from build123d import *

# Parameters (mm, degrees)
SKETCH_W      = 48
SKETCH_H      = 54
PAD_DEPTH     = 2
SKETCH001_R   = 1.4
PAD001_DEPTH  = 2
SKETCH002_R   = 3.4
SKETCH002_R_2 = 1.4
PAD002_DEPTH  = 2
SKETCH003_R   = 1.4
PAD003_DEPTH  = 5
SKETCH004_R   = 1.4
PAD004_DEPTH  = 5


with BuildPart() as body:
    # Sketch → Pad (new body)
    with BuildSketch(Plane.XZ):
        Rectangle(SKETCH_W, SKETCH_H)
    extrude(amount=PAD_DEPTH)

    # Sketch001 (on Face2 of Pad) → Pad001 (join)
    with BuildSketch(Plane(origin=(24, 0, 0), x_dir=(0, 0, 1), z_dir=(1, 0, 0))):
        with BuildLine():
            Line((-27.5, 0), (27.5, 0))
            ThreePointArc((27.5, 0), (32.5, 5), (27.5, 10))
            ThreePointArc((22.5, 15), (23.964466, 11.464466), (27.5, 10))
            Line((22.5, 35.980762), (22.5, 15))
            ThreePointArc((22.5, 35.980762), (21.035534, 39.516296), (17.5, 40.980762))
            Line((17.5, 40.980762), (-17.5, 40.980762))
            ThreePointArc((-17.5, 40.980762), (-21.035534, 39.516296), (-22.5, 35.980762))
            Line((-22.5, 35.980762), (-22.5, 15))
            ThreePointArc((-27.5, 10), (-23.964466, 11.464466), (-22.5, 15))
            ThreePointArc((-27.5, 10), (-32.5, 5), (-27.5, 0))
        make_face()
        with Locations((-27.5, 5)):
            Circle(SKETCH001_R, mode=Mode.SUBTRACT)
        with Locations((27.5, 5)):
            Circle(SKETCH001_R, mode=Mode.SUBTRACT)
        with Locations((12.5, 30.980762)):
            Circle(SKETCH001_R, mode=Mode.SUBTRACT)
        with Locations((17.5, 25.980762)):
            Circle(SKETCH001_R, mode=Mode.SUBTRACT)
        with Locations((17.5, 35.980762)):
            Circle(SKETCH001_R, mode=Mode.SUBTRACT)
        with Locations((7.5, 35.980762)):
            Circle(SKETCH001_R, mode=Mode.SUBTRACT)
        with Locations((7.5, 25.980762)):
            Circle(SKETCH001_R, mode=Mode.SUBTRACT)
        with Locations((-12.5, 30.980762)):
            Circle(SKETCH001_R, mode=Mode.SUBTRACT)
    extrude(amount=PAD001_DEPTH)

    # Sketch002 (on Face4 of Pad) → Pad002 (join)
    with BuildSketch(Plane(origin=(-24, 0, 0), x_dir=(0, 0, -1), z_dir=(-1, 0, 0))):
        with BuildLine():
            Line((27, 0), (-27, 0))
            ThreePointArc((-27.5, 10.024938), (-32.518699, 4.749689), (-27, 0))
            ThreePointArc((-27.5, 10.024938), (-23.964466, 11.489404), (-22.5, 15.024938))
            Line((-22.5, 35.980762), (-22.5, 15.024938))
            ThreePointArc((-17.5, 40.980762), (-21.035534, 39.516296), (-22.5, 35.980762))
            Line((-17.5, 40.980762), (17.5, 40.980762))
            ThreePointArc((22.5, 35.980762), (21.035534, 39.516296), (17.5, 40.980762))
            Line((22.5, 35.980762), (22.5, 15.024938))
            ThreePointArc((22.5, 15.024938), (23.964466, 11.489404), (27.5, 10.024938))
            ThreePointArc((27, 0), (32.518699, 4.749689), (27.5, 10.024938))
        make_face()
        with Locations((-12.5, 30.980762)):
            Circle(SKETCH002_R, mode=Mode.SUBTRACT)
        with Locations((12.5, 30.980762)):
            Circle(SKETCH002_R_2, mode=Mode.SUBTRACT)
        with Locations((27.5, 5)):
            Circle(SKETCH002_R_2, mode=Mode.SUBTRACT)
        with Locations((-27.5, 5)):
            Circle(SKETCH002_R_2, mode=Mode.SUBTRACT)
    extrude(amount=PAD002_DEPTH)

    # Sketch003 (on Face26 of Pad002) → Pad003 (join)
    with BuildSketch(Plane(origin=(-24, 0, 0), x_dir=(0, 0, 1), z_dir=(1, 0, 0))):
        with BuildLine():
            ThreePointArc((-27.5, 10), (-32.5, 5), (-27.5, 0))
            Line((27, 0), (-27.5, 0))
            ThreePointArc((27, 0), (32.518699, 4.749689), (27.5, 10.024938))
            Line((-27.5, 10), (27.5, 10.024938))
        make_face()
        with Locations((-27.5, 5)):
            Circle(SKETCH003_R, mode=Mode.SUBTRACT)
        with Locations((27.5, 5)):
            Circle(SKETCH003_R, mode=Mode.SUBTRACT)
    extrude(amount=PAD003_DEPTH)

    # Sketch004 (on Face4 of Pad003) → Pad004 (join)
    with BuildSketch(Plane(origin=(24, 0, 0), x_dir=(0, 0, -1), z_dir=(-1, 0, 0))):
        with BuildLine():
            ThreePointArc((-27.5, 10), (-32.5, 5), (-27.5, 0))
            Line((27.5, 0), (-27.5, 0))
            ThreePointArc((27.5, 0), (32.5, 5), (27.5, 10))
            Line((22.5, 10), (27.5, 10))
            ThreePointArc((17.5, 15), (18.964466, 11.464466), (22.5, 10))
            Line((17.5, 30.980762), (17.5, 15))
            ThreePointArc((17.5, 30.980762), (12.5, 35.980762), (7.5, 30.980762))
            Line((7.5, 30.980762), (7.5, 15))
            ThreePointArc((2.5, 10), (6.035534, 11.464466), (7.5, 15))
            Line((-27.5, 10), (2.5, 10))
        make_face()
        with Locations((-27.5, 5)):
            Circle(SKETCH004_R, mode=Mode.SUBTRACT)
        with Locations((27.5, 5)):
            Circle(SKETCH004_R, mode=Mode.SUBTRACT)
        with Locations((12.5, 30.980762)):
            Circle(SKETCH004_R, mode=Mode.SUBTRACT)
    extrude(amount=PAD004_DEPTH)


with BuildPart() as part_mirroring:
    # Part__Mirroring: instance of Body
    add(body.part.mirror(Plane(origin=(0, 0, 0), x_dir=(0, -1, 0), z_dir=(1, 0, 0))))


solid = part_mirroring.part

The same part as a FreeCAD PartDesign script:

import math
import FreeCAD as App
import Part
import Sketcher

V = App.Vector


def add_polygon(sketch, points):
    """Adds a closed chain of lines whose ends are joined by coincident constraints."""
    first, n = sketch.GeometryCount, len(points)
    for a, b in zip(points, points[1:] + points[:1]):
        sketch.addGeometry(Part.LineSegment(App.Vector(*a, 0), App.Vector(*b, 0)), False)
    for i in range(n):
        sketch.addConstraint(Sketcher.Constraint("Coincident", first + i, 2, first + (i + 1) % n, 1))

doc = App.newDocument("Part")
body = doc.addObject("PartDesign::Body", "Body")

# Sketch on XZ plane
sketch1 = body.newObject("Sketcher::SketchObject", "Sketch")
sketch1.AttachmentSupport = (doc.getObject("XZ_Plane"), [""])
sketch1.MapMode = "FlatFace"
add_polygon(sketch1, [(-24, 27), (-24, -27), (24, -27), (24, 27)])  # lines 0-3
sketch1.addConstraint([
    Sketcher.Constraint("Vertical", 0),
    Sketcher.Constraint("Horizontal", 1),
    Sketcher.Constraint("Vertical", 2),
    Sketcher.Constraint("Horizontal", 3),
    Sketcher.Constraint("Symmetric", 0, 2, 2, 2, -1, 1),
    Sketcher.Constraint("DistanceX", 1, 1, 1, 2, 48.0),
    Sketcher.Constraint("DistanceY", 0, 2, 0, 1, 54.0),
])
pad1 = body.newObject("PartDesign::Pad", "Pad")
pad1.Profile = sketch1
pad1.Length = 2

# Sketch on YZ plane
sketch2 = body.newObject("Sketcher::SketchObject", "Sketch001")
sketch2.AttachmentSupport = (doc.getObject("YZ_Plane"), [""])
sketch2.MapMode = "FlatFace"
sketch2.AttachmentOffset = App.Placement(V(0, 0, 24), App.Rotation())
sketch2.addGeometry([
    Part.LineSegment(V(0, -27.5, 0), V(0, 27.5, 0)),  # 0
    Part.ArcOfCircle(Part.Circle(V(-5, 27.5, 0), V(0, 0, 1), 5), math.radians(0), math.radians(180)),  # 1
    Part.ArcOfCircle(Part.Circle(V(-15, 27.5, 0), V(0, 0, 1), 5), math.radians(-90), math.radians(0)),  # 2
    Part.LineSegment(V(-15, 22.5, 0), V(-36, 22.5, 0)),  # 3
    Part.ArcOfCircle(Part.Circle(V(-36, 17.5, 0), V(0, 0, 1), 5), math.radians(90), math.radians(180)),  # 4
    Part.LineSegment(V(-41, 17.5, 0), V(-41, -17.5, 0)),  # 5
    Part.ArcOfCircle(Part.Circle(V(-36, -17.5, 0), V(0, 0, 1), 5), math.radians(180), math.radians(270)),  # 6
    Part.LineSegment(V(-36, -22.5, 0), V(-15, -22.5, 0)),  # 7
    Part.ArcOfCircle(Part.Circle(V(-15, -27.5, 0), V(0, 0, 1), 5), math.radians(0), math.radians(90)),  # 8
    Part.ArcOfCircle(Part.Circle(V(-5, -27.5, 0), V(0, 0, 1), 5), math.radians(180), math.radians(360)),  # 9
    Part.Circle(V(-5, -27.5, 0), V(0, 0, 1), 1.4),  # 10
    Part.Circle(V(-5, 27.5, 0), V(0, 0, 1), 1.4),  # 11
    Part.Circle(V(-31, -12.5, 0), V(0, 0, 1), 1.4),  # 12
    Part.Circle(V(-26, 7.5, 0), V(0, 0, 1), 1.4),  # 13
    Part.Circle(V(-26, 17.5, 0), V(0, 0, 1), 1.4),  # 14
    Part.Circle(V(-31, 12.5, 0), V(0, 0, 1), 1.4),  # 15
    Part.Circle(V(-36, 7.5, 0), V(0, 0, 1), 1.4),  # 16
    Part.Circle(V(-36, 17.5, 0), V(0, 0, 1), 1.4),  # 17
], False)
sketch2.addConstraint([
    Sketcher.Constraint("Tangent", 0, 2, 1, 1),
    Sketcher.Constraint("Tangent", 1, 2, 2, 2),
    Sketcher.Constraint("Tangent", 2, 1, 3, 1),
    Sketcher.Constraint("Tangent", 3, 2, 4, 1),
    Sketcher.Constraint("Tangent", 4, 2, 5, 1),
    Sketcher.Constraint("Tangent", 5, 2, 6, 1),
    Sketcher.Constraint("Tangent", 6, 2, 7, 1),
    Sketcher.Constraint("Tangent", 7, 2, 8, 2),
    Sketcher.Constraint("Tangent", 8, 1, 9, 1),
    Sketcher.Constraint("Tangent", 9, 2, 0, 1),
    Sketcher.Constraint("Vertical", 0),
    Sketcher.Constraint("Horizontal", 3),
    Sketcher.Constraint("Vertical", 5),
    Sketcher.Constraint("Horizontal", 7),
    Sketcher.Constraint("Coincident", 10, 3, 9, 3),
    Sketcher.Constraint("Coincident", 11, 3, 1, 3),
    Sketcher.Constraint("Coincident", 17, 3, 4, 3),
    Sketcher.Constraint("Equal", 1, 2),
    Sketcher.Constraint("Equal", 2, 4),
    Sketcher.Constraint("Equal", 4, 6),
    Sketcher.Constraint("Equal", 6, 8),
    Sketcher.Constraint("Equal", 8, 9),
    Sketcher.Constraint("Equal", 10, 11),
    Sketcher.Constraint("Equal", 11, 12),
    Sketcher.Constraint("Equal", 12, 13),
    Sketcher.Constraint("Equal", 13, 14),
    Sketcher.Constraint("Equal", 14, 15),
    Sketcher.Constraint("Equal", 15, 16),
    Sketcher.Constraint("Equal", 16, 17),
    Sketcher.Constraint("Symmetric", 0, 2, 9, 2, -1, 1),
    Sketcher.Constraint("Symmetric", 12, 3, 15, 3, -1),
    Sketcher.Constraint("Horizontal", 1, 3, 2, 3),
    Sketcher.Constraint("Horizontal", 8, 3, 9, 3),
    Sketcher.Constraint("Horizontal", 4, 3, 14, 3),
    Sketcher.Constraint("Horizontal", 13, 3, 16, 3),
    Sketcher.Constraint("Vertical", 13, 3, 14, 3),
    Sketcher.Constraint("Vertical", 6, 3, 16, 3),
    Sketcher.Constraint("Radius", 1, 5.0),
    Sketcher.Constraint("Diameter", 10, 2.8),
    Sketcher.Constraint("DistanceY", 0, 1, 0, 2, 55.0),
    Sketcher.Constraint("DistanceX", 6, 3, 12, 3, 5.0),
    Sketcher.Constraint("DistanceY", 6, 3, 12, 3, 5.0),
    Sketcher.Constraint("DistanceX", 4, 3, 13, 3, 10.0),
    Sketcher.Constraint("DistanceY", 13, 3, 4, 3, 10.0),
    Sketcher.Constraint("DistanceX", 3, 2, 3, 1, 20.980762),
])
pad2 = body.newObject("PartDesign::Pad", "Pad001")
pad2.Profile = sketch2
pad2.Length = 2

# Sketch on YZ plane
sketch3 = body.newObject("Sketcher::SketchObject", "Sketch002")
sketch3.AttachmentSupport = (doc.getObject("YZ_Plane"), [""])
sketch3.MapMode = "FlatFace"
sketch3.AttachmentOffset = App.Placement(V(0, 0, -24), App.Rotation())
sketch3.addGeometry([
    Part.LineSegment(V(0, 27, 0), V(0, -27, 0)),  # 0
    Part.ArcOfCircle(Part.Circle(V(-5, -27.5, 0), V(0, 0, 1), 5), math.radians(-180), math.radians(6)),  # 1
    Part.ArcOfCircle(Part.Circle(V(-15, -27.5, 0), V(0, 0, 1), 5), math.radians(0), math.radians(90)),  # 2
    Part.LineSegment(V(-15, -22.5, 0), V(-36, -22.5, 0)),  # 3
    Part.ArcOfCircle(Part.Circle(V(-36, -17.5, 0), V(0, 0, 1), 5), math.radians(180), math.radians(270)),  # 4
    Part.LineSegment(V(-41, -17.5, 0), V(-41, 17.5, 0)),  # 5
    Part.ArcOfCircle(Part.Circle(V(-36, 17.5, 0), V(0, 0, 1), 5), math.radians(90), math.radians(180)),  # 6
    Part.LineSegment(V(-36, 22.5, 0), V(-15, 22.5, 0)),  # 7
    Part.ArcOfCircle(Part.Circle(V(-15, 27.5, 0), V(0, 0, 1), 5), math.radians(-90), math.radians(0)),  # 8
    Part.ArcOfCircle(Part.Circle(V(-5, 27.5, 0), V(0, 0, 1), 5), math.radians(-6), math.radians(180)),  # 9
    Part.Circle(V(-5, -27.5, 0), V(0, 0, 1), 1.4),  # 10
    Part.Circle(V(-5, 27.5, 0), V(0, 0, 1), 1.4),  # 11
    Part.Circle(V(-31, -12.5, 0), V(0, 0, 1), 1.4),  # 12
    Part.Circle(V(-31, 12.5, 0), V(0, 0, 1), 3.4),  # 13
], False)
sketch3.addConstraint([
    Sketcher.Constraint("Coincident", 0, 2, 1, 2),
    Sketcher.Constraint("Tangent", 1, 1, 2, 1),
    Sketcher.Constraint("Tangent", 2, 2, 3, 1),
    Sketcher.Constraint("Tangent", 3, 2, 4, 2),
    Sketcher.Constraint("Tangent", 4, 1, 5, 1),
    Sketcher.Constraint("Tangent", 5, 2, 6, 2),
    Sketcher.Constraint("Tangent", 6, 1, 7, 1),
    Sketcher.Constraint("Tangent", 7, 2, 8, 1),
    Sketcher.Constraint("Tangent", 8, 2, 9, 2),
    Sketcher.Constraint("Coincident", 9, 1, 0, 1),
    Sketcher.Constraint("Vertical", 0),
    Sketcher.Constraint("Horizontal", 3),
    Sketcher.Constraint("Vertical", 5),
    Sketcher.Constraint("Horizontal", 7),
    Sketcher.Constraint("Coincident", 10, 3, 1, 3),
    Sketcher.Constraint("Coincident", 11, 3, 9, 3),
    Sketcher.Constraint("Equal", 2, 4),
    Sketcher.Constraint("Equal", 4, 6),
    Sketcher.Constraint("Equal", 6, 8),
    Sketcher.Constraint("Equal", 1, 9),
    Sketcher.Constraint("Equal", 10, 11),
    Sketcher.Constraint("Equal", 11, 12),
    Sketcher.Constraint("Symmetric", 0, 2, 9, 1, -1, 1),
    Sketcher.Constraint("Symmetric", 2, 3, 8, 3, -1),
    Sketcher.Constraint("Symmetric", 12, 3, 13, 3, -1),
    Sketcher.Constraint("Horizontal", 1, 3, 2, 3),
    Sketcher.Constraint("Radius", 2, 5.0),
    Sketcher.Constraint("Diameter", 10, 2.8),
    Sketcher.Constraint("Diameter", 13, 6.8),
    Sketcher.Constraint("DistanceY", 0, 2, 0, 1, 54.0),
    Sketcher.Constraint("DistanceY", 5, 1, 5, 2, 35.0),
    Sketcher.Constraint("DistanceX", 1, 3, -1, 1, 5.0),
    Sketcher.Constraint("DistanceX", 4, 3, 12, 3, 5.0),
    Sketcher.Constraint("DistanceY", 4, 3, 12, 3, 5.0),
    Sketcher.Constraint("DistanceX", 3, 2, 3, 1, 20.955824),
])
pad3 = body.newObject("PartDesign::Pad", "Pad002")
pad3.Profile = sketch3
pad3.Length = 2
pad3.Reversed = True

# Sketch on YZ plane
sketch4 = body.newObject("Sketcher::SketchObject", "Sketch003")
sketch4.AttachmentSupport = (doc.getObject("YZ_Plane"), [""])
sketch4.MapMode = "FlatFace"
sketch4.AttachmentOffset = App.Placement(V(0, 0, -24), App.Rotation())
sketch4.addGeometry([
    Part.ArcOfCircle(Part.Circle(V(-5, -27.5, 0), V(0, 0, 1), 5), math.radians(180), math.radians(360)),  # 0
    Part.LineSegment(V(0, -27.5, 0), V(0, 27, 0)),  # 1
    Part.ArcOfCircle(Part.Circle(V(-5, 27.5, 0), V(0, 0, 1), 5), math.radians(-6), math.radians(180)),  # 2
    Part.LineSegment(V(-10, 27.5, 0), V(-10, -27.5, 0)),  # 3
    Part.Circle(V(-5, -27.5, 0), V(0, 0, 1), 1.4),  # 4
    Part.Circle(V(-5, 27.5, 0), V(0, 0, 1), 1.4),  # 5
], False)
sketch4.addConstraint([
    Sketcher.Constraint("Tangent", 0, 2, 1, 1),
    Sketcher.Constraint("Coincident", 1, 2, 2, 1),
    Sketcher.Constraint("Coincident", 2, 2, 3, 1),
    Sketcher.Constraint("Coincident", 3, 2, 0, 1),
    Sketcher.Constraint("Vertical", 1),
    Sketcher.Constraint("Coincident", 4, 3, 0, 3),
    Sketcher.Constraint("Coincident", 5, 3, 2, 3),
    Sketcher.Constraint("Equal", 4, 5),
    Sketcher.Constraint("Symmetric", 0, 3, 2, 3, -1),
    Sketcher.Constraint("PointOnObject", 0, 2, -2),
    Sketcher.Constraint("Horizontal", 5, 3, 2, 2),
    Sketcher.Constraint("Horizontal", 0, 2, 3, 2),
    Sketcher.Constraint("Radius", 0, 5.0),
    Sketcher.Constraint("Diameter", 4, 2.8),
    Sketcher.Constraint("DistanceY", 1, 1, 1, 2, 54.5),
    Sketcher.Constraint("DistanceY", -1, 1, 1, 2, 27.0),
])
pad4 = body.newObject("PartDesign::Pad", "Pad003")
pad4.Profile = sketch4
pad4.Length = 5

# Sketch on YZ plane
sketch5 = body.newObject("Sketcher::SketchObject", "Sketch004")
sketch5.AttachmentSupport = (doc.getObject("YZ_Plane"), [""])
sketch5.MapMode = "FlatFace"
sketch5.AttachmentOffset = App.Placement(V(0, 0, 24), App.Rotation())
sketch5.addGeometry([
    Part.ArcOfCircle(Part.Circle(V(-5, 27.5, 0), V(0, 0, 1), 5), math.radians(0), math.radians(180)),  # 0
    Part.LineSegment(V(0, 27.5, 0), V(0, -27.5, 0)),  # 1
    Part.ArcOfCircle(Part.Circle(V(-5, -27.5, 0), V(0, 0, 1), 5), math.radians(180), math.radians(360)),  # 2
    Part.LineSegment(V(-10, -27.5, 0), V(-10, -22.5, 0)),  # 3
    Part.ArcOfCircle(Part.Circle(V(-15, -22.5, 0), V(0, 0, 1), 5), math.radians(0), math.radians(90)),  # 4
    Part.LineSegment(V(-15, -17.5, 0), V(-31, -17.5, 0)),  # 5
    Part.ArcOfCircle(Part.Circle(V(-31, -12.5, 0), V(0, 0, 1), 5), math.radians(90), math.radians(270)),  # 6
    Part.LineSegment(V(-31, -7.5, 0), V(-15, -7.5, 0)),  # 7
    Part.ArcOfCircle(Part.Circle(V(-15, -2.5, 0), V(0, 0, 1), 5), math.radians(-90), math.radians(0)),  # 8
    Part.LineSegment(V(-10, -2.5, 0), V(-10, 27.5, 0)),  # 9
    Part.Circle(V(-5, 27.5, 0), V(0, 0, 1), 1.4),  # 10
    Part.Circle(V(-5, -27.5, 0), V(0, 0, 1), 1.4),  # 11
    Part.Circle(V(-31, -12.5, 0), V(0, 0, 1), 1.4),  # 12
], False)
sketch5.addConstraint([
    Sketcher.Constraint("Tangent", 0, 1, 1, 1),
    Sketcher.Constraint("Tangent", 1, 2, 2, 2),
    Sketcher.Constraint("Tangent", 2, 1, 3, 1),
    Sketcher.Constraint("Tangent", 3, 2, 4, 1),
    Sketcher.Constraint("Tangent", 4, 2, 5, 1),
    Sketcher.Constraint("Tangent", 5, 2, 6, 2),
    Sketcher.Constraint("Tangent", 6, 1, 7, 1),
    Sketcher.Constraint("Tangent", 7, 2, 8, 1),
    Sketcher.Constraint("Tangent", 8, 2, 9, 1),
    Sketcher.Constraint("Tangent", 9, 2, 0, 2),
    Sketcher.Constraint("Vertical", 1),
    Sketcher.Constraint("Vertical", 3),
    Sketcher.Constraint("Horizontal", 5),
    Sketcher.Constraint("Horizontal", 7),
    Sketcher.Constraint("Vertical", 9),
    Sketcher.Constraint("Coincident", 10, 3, 0, 3),
    Sketcher.Constraint("Coincident", 11, 3, 2, 3),
    Sketcher.Constraint("Coincident", 12, 3, 6, 3),
    Sketcher.Constraint("Equal", 0, 2),
    Sketcher.Constraint("Equal", 2, 4),
    Sketcher.Constraint("Equal", 4, 6),
    Sketcher.Constraint("Equal", 6, 8),
    Sketcher.Constraint("Equal", 10, 11),
    Sketcher.Constraint("Equal", 11, 12),
    Sketcher.Constraint("Symmetric", 0, 1, 1, 2, -1, 1),
    Sketcher.Constraint("Radius", 0, 5.0),
    Sketcher.Constraint("Diameter", 10, 2.8),
    Sketcher.Constraint("DistanceY", 1, 2, 1, 1, 55.0),
    Sketcher.Constraint("DistanceY", 3, 1, 3, 2, 5.0),
    Sketcher.Constraint("DistanceX", 5, 2, 5, 1, 15.980762),
])
pad5 = body.newObject("PartDesign::Pad", "Pad004")
pad5.Profile = sketch5
pad5.Length = 5
pad5.Reversed = True
body2 = doc.addObject("PartDesign::Body", "Body001")
doc.recompute()

mirroring = doc.addObject("Part::Mirroring", "Mirroring")
mirroring.Source = body
mirroring.Base = V(0, 0, 0)
mirroring.Normal = V(1, 0, 0)
body2.BaseFeature = mirroring
doc.recompute()
body.Visibility = False
mirroring.Visibility = False

doc.recompute()
